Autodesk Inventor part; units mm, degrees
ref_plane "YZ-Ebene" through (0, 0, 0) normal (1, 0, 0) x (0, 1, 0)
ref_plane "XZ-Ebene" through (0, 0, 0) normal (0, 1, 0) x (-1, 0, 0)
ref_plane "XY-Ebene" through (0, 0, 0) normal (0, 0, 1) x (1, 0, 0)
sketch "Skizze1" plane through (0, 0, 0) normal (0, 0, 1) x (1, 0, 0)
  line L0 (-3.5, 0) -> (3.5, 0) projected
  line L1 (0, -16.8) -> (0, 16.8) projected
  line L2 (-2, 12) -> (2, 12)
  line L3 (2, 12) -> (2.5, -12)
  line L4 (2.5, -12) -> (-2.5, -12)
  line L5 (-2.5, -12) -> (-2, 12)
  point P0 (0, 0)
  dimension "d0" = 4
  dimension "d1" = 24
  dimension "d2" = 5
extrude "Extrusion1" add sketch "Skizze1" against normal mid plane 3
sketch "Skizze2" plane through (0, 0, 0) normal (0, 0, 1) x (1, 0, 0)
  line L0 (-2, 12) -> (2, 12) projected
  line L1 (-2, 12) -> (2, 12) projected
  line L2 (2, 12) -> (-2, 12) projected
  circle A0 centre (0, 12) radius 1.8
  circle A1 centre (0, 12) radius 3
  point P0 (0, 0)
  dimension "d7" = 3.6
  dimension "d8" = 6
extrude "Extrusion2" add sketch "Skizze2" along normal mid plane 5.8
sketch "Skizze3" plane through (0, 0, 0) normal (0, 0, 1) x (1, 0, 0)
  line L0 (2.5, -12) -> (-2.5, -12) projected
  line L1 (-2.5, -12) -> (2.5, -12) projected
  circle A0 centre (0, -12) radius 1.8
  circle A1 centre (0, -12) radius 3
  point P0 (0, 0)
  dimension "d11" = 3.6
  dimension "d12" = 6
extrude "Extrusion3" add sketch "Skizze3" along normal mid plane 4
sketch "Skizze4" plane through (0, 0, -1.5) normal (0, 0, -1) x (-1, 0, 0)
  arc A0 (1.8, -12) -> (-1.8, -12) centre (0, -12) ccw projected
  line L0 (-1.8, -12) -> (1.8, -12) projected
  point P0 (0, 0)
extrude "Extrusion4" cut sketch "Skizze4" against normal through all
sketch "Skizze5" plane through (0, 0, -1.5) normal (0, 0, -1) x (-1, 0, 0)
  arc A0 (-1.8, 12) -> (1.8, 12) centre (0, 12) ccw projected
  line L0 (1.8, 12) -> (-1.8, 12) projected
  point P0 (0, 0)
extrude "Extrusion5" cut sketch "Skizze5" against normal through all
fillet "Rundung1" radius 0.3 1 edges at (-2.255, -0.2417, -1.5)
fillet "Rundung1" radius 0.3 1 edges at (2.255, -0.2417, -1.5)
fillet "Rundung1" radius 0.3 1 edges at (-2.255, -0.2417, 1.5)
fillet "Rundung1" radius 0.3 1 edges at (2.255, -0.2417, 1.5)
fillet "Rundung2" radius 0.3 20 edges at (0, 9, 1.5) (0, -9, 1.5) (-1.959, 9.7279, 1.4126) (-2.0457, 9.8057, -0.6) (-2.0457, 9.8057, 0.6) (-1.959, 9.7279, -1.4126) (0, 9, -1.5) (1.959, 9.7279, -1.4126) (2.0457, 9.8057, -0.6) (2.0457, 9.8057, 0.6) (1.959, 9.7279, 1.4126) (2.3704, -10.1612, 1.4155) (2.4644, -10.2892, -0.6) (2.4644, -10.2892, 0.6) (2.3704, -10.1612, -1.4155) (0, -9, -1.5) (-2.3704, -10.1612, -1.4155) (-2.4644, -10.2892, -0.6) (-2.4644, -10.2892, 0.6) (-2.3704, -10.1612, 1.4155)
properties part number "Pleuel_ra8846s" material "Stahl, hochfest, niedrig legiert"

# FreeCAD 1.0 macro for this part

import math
import FreeCAD as App
import Part
import Sketcher
from FreeCAD import Vector
Q = App.Units.Quantity


def edges_at(feature, points):
    """Names of the edges that pass closest to the given points."""
    edges = feature.Shape.Edges
    near = lambda p: min(range(len(edges)), key=lambda i: edges[i].distToShape(Part.Vertex(*p))[0])
    return sorted({f"Edge{near(p) + 1}" for p in points})

doc = App.newDocument("Part")
params = doc.addObject("Spreadsheet::Sheet", "Params")
for row, (alias, value) in enumerate([
    ("sketch1_width", "5 mm"),
    ("sketch1_width2", "4 mm"),
    ("pad1_length", "3 mm"),
    ("sketch2_diameter", "6 mm"),
    ("sketch2_diameter2", "3.6 mm"),
    ("pad2_length", "5.8 mm"),
    ("sketch3_diameter", "6 mm"),
    ("sketch3_diameter2", "3.6 mm"),
    ("pad3_length", "4 mm"),
    ("sketch4_radius", "1.8 mm"),
    ("sketch5_radius", "1.8 mm"),
    ("fillet_radius", "0.3 mm"),
    ("fillet2_radius", "0.3 mm"),
    ("fillet3_radius", "0.3 mm"),
    ("fillet4_radius", "0.3 mm"),
    ("fillet5_radius", "0.3 mm"),
], start=1):
    params.set(f"A{row}", alias)
    params.set(f"B{row}", "=" + value)
    params.setAlias(f"B{row}", alias)

body = doc.addObject("PartDesign::Body", "Body")

# Sketch on XY plane
sketch1 = body.newObject("Sketcher::SketchObject", "Sketch")
sketch1.AttachmentSupport = (doc.getObject("XY_Plane"), [""])
sketch1.MapMode = "FlatFace"
sketch1.addGeometry(Part.LineSegment(Vector(-2, 12, 0), Vector(-2.5, -12, 0)), False)
sketch1.addGeometry(Part.LineSegment(Vector(-2.5, -12, 0), Vector(2.5, -12, 0)), False)
sketch1.addGeometry(Part.LineSegment(Vector(2.5, -12, 0), Vector(2, 12, 0)), False)
sketch1.addGeometry(Part.LineSegment(Vector(2, 12, 0), Vector(-2, 12, 0)), False)
sketch1.addConstraint(Sketcher.Constraint("Coincident", 0, 2, 1, 1))
sketch1.addConstraint(Sketcher.Constraint("Coincident", 1, 2, 2, 1))
sketch1.addConstraint(Sketcher.Constraint("Coincident", 2, 2, 3, 1))
sketch1.addConstraint(Sketcher.Constraint("Coincident", 3, 2, 0, 1))
sketch1.addConstraint(Sketcher.Constraint("Horizontal", 1))
sketch1.addConstraint(Sketcher.Constraint("Horizontal", 3))
sketch1.addConstraint(Sketcher.Constraint("Equal", 0, 2))
sketch1.addConstraint(Sketcher.Constraint("DistanceX", 1, 1, 1, 2, Q("5 mm")))
sketch1.addConstraint(Sketcher.Constraint("DistanceX", 3, 2, 3, 1, Q("4 mm")))
sketch1.addConstraint(Sketcher.Constraint("DistanceY", 1, 2, 2, 2, Q("24 mm")))
sketch1.addConstraint(Sketcher.Constraint("DistanceY", 0, 2, -1, 1, Q("12 mm")))
sketch1.addConstraint(Sketcher.Constraint("DistanceX", -1, 1, 2, 2, Q("2 mm")))
sketch1.setExpression("Constraints[7]", "Params.sketch1_width")
sketch1.setExpression("Constraints[8]", "Params.sketch1_width2")
pad1 = body.newObject("PartDesign::Pad", "Pad")
pad1.Profile = sketch1
pad1.setExpression("Length", "Params.pad1_length")
pad1.Midplane = True

# Sketch on XY plane
sketch2 = body.newObject("Sketcher::SketchObject", "Sketch001")
sketch2.AttachmentSupport = (doc.getObject("XY_Plane"), [""])
sketch2.MapMode = "FlatFace"
sketch2.addGeometry(Part.Circle(Vector(0, 12, 0), Vector(0, 0, 1), 3), False)
sketch2.addGeometry(Part.Circle(Vector(0, 12, 0), Vector(0, 0, 1), 1.8), False)
sketch2.addConstraint(Sketcher.Constraint("Coincident", 1, 3, 0, 3))
sketch2.addConstraint(Sketcher.Constraint("PointOnObject", 0, 3, -2))
sketch2.addConstraint(Sketcher.Constraint("Diameter", 0, Q("6 mm")))
sketch2.addConstraint(Sketcher.Constraint("Diameter", 1, Q("3.6 mm")))
sketch2.addConstraint(Sketcher.Constraint("DistanceY", -1, 1, 0, 3, Q("12 mm")))
sketch2.setExpression("Constraints[2]", "Params.sketch2_diameter")
sketch2.setExpression("Constraints[3]", "Params.sketch2_diameter2")
pad2 = body.newObject("PartDesign::Pad", "Pad001")
pad2.Profile = sketch2
pad2.setExpression("Length", "Params.pad2_length")
pad2.Midplane = True

# Sketch on XY plane
sketch3 = body.newObject("Sketcher::SketchObject", "Sketch002")
sketch3.AttachmentSupport = (doc.getObject("XY_Plane"), [""])
sketch3.MapMode = "FlatFace"
sketch3.addGeometry(Part.Circle(Vector(0, -12, 0), Vector(0, 0, 1), 3), False)
sketch3.addGeometry(Part.Circle(Vector(0, -12, 0), Vector(0, 0, 1), 1.8), False)
sketch3.addConstraint(Sketcher.Constraint("Coincident", 1, 3, 0, 3))
sketch3.addConstraint(Sketcher.Constraint("PointOnObject", 0, 3, -2))
sketch3.addConstraint(Sketcher.Constraint("Diameter", 0, Q("6 mm")))
sketch3.addConstraint(Sketcher.Constraint("Diameter", 1, Q("3.6 mm")))
sketch3.addConstraint(Sketcher.Constraint("DistanceY", 0, 3, -1, 1, Q("12 mm")))
sketch3.setExpression("Constraints[2]", "Params.sketch3_diameter")
sketch3.setExpression("Constraints[3]", "Params.sketch3_diameter2")
pad3 = body.newObject("PartDesign::Pad", "Pad002")
pad3.Profile = sketch3
pad3.setExpression("Length", "Params.pad3_length")
pad3.Midplane = True

# Sketch on XY plane
sketch4 = body.newObject("Sketcher::SketchObject", "Sketch003")
sketch4.AttachmentSupport = (doc.getObject("XY_Plane"), [""])
sketch4.MapMode = "FlatFace"
sketch4.AttachmentOffset = App.Placement(Vector(0, 0, -1.5), App.Rotation())
sketch4.addGeometry(Part.LineSegment(Vector(1.8, -12, 0), Vector(-1.8, -12, 0)), False)
sketch4.addGeometry(Part.ArcOfCircle(Part.Circle(Vector(0, -12, 0), Vector(0, 0, 1), 1.8), math.radians(0), math.radians(180)), False)
sketch4.addConstraint(Sketcher.Constraint("Coincident", 0, 1, 1, 1))
sketch4.addConstraint(Sketcher.Constraint("Coincident", 1, 2, 0, 2))
sketch4.addConstraint(Sketcher.Constraint("Horizontal", 0))
sketch4.addConstraint(Sketcher.Constraint("PointOnObject", 1, 3, -2))
sketch4.addConstraint(Sketcher.Constraint("Horizontal", 1, 3, 0, 1))
sketch4.addConstraint(Sketcher.Constraint("Radius", 1, Q("1.8 mm")))
sketch4.addConstraint(Sketcher.Constraint("DistanceY", 1, 3, -1, 1, Q("12 mm")))
sketch4.setExpression("Constraints[5]", "Params.sketch4_radius")
pocket1 = body.newObject("PartDesign::Pocket", "Pocket")
pocket1.Profile = sketch4
pocket1.Type = "ThroughAll"
pocket1.Reversed = True

# Sketch on XY plane
sketch5 = body.newObject("Sketcher::SketchObject", "Sketch004")
sketch5.AttachmentSupport = (doc.getObject("XY_Plane"), [""])
sketch5.MapMode = "FlatFace"
sketch5.AttachmentOffset = App.Placement(Vector(0, 0, -1.5), App.Rotation())
sketch5.addGeometry(Part.LineSegment(Vector(-1.8, 12, 0), Vector(1.8, 12, 0)), False)
sketch5.addGeometry(Part.ArcOfCircle(Part.Circle(Vector(0, 12, 0), Vector(0, 0, 1), 1.8), math.radians(180), math.radians(360)), False)
sketch5.addConstraint(Sketcher.Constraint("Coincident", 0, 1, 1, 1))
sketch5.addConstraint(Sketcher.Constraint("Coincident", 1, 2, 0, 2))
sketch5.addConstraint(Sketcher.Constraint("Horizontal", 0))
sketch5.addConstraint(Sketcher.Constraint("PointOnObject", 1, 3, -2))
sketch5.addConstraint(Sketcher.Constraint("Horizontal", 1, 3, 0, 1))
sketch5.addConstraint(Sketcher.Constraint("Radius", 1, Q("1.8 mm")))
sketch5.addConstraint(Sketcher.Constraint("DistanceY", -1, 1, 1, 3, Q("12 mm")))
sketch5.setExpression("Constraints[5]", "Params.sketch5_radius")
pocket2 = body.newObject("PartDesign::Pocket", "Pocket001")
pocket2.Profile = sketch5
pocket2.Type = "ThroughAll"
pocket2.Reversed = True
doc.recompute()

fillet = body.newObject("PartDesign::Fillet", "Fillet")
fillet.Base = (pocket2, edges_at(pocket2, [(-2.255, -0.242, -1.5)]))
fillet.setExpression("Radius", "Params.fillet_radius")
doc.recompute()

fillet2 = body.newObject("PartDesign::Fillet", "Fillet001")
fillet2.Base = (fillet, edges_at(fillet, [(2.255, -0.242, -1.5)]))
fillet2.setExpression("Radius", "Params.fillet2_radius")
doc.recompute()

fillet3 = body.newObject("PartDesign::Fillet", "Fillet002")
fillet3.Base = (fillet2, edges_at(fillet2, [(-2.255, -0.242, 1.5)]))
fillet3.setExpression("Radius", "Params.fillet3_radius")
doc.recompute()

fillet4 = body.newObject("PartDesign::Fillet", "Fillet003")
fillet4.Base = (fillet3, edges_at(fillet3, [(2.255, -0.242, 1.5)]))
fillet4.setExpression("Radius", "Params.fillet4_radius")
doc.recompute()

fillet5 = body.newObject("PartDesign::Fillet", "Fillet004")
fillet5.Base = (fillet4, edges_at(fillet4, [
    (0, 9, 1.5),
    (0, -9, 1.5),
    (-1.959, 9.728, 1.413),
    (-2.046, 9.806, -0.6),
    (-2.046, 9.806, 0.6),
    (-1.959, 9.728, -1.413),
    (0, 9, -1.5),
    (1.959, 9.728, -1.413),
    (2.046, 9.806, -0.6),
    (2.046, 9.806, 0.6),
    (1.959, 9.728, 1.413),
    (2.37, -10.161, 1.415),
    (2.464, -10.289, -0.6),
    (2.464, -10.289, 0.6),
    (2.37, -10.161, -1.415),
    (0, -9, -1.5),
    (-2.37, -10.161, -1.415),
    (-2.464, -10.289, -0.6),
    (-2.464, -10.289, 0.6),
    (-2.37, -10.161, 1.415),
]))
fillet5.setExpression("Radius", "Params.fillet5_radius")

doc.recompute()
